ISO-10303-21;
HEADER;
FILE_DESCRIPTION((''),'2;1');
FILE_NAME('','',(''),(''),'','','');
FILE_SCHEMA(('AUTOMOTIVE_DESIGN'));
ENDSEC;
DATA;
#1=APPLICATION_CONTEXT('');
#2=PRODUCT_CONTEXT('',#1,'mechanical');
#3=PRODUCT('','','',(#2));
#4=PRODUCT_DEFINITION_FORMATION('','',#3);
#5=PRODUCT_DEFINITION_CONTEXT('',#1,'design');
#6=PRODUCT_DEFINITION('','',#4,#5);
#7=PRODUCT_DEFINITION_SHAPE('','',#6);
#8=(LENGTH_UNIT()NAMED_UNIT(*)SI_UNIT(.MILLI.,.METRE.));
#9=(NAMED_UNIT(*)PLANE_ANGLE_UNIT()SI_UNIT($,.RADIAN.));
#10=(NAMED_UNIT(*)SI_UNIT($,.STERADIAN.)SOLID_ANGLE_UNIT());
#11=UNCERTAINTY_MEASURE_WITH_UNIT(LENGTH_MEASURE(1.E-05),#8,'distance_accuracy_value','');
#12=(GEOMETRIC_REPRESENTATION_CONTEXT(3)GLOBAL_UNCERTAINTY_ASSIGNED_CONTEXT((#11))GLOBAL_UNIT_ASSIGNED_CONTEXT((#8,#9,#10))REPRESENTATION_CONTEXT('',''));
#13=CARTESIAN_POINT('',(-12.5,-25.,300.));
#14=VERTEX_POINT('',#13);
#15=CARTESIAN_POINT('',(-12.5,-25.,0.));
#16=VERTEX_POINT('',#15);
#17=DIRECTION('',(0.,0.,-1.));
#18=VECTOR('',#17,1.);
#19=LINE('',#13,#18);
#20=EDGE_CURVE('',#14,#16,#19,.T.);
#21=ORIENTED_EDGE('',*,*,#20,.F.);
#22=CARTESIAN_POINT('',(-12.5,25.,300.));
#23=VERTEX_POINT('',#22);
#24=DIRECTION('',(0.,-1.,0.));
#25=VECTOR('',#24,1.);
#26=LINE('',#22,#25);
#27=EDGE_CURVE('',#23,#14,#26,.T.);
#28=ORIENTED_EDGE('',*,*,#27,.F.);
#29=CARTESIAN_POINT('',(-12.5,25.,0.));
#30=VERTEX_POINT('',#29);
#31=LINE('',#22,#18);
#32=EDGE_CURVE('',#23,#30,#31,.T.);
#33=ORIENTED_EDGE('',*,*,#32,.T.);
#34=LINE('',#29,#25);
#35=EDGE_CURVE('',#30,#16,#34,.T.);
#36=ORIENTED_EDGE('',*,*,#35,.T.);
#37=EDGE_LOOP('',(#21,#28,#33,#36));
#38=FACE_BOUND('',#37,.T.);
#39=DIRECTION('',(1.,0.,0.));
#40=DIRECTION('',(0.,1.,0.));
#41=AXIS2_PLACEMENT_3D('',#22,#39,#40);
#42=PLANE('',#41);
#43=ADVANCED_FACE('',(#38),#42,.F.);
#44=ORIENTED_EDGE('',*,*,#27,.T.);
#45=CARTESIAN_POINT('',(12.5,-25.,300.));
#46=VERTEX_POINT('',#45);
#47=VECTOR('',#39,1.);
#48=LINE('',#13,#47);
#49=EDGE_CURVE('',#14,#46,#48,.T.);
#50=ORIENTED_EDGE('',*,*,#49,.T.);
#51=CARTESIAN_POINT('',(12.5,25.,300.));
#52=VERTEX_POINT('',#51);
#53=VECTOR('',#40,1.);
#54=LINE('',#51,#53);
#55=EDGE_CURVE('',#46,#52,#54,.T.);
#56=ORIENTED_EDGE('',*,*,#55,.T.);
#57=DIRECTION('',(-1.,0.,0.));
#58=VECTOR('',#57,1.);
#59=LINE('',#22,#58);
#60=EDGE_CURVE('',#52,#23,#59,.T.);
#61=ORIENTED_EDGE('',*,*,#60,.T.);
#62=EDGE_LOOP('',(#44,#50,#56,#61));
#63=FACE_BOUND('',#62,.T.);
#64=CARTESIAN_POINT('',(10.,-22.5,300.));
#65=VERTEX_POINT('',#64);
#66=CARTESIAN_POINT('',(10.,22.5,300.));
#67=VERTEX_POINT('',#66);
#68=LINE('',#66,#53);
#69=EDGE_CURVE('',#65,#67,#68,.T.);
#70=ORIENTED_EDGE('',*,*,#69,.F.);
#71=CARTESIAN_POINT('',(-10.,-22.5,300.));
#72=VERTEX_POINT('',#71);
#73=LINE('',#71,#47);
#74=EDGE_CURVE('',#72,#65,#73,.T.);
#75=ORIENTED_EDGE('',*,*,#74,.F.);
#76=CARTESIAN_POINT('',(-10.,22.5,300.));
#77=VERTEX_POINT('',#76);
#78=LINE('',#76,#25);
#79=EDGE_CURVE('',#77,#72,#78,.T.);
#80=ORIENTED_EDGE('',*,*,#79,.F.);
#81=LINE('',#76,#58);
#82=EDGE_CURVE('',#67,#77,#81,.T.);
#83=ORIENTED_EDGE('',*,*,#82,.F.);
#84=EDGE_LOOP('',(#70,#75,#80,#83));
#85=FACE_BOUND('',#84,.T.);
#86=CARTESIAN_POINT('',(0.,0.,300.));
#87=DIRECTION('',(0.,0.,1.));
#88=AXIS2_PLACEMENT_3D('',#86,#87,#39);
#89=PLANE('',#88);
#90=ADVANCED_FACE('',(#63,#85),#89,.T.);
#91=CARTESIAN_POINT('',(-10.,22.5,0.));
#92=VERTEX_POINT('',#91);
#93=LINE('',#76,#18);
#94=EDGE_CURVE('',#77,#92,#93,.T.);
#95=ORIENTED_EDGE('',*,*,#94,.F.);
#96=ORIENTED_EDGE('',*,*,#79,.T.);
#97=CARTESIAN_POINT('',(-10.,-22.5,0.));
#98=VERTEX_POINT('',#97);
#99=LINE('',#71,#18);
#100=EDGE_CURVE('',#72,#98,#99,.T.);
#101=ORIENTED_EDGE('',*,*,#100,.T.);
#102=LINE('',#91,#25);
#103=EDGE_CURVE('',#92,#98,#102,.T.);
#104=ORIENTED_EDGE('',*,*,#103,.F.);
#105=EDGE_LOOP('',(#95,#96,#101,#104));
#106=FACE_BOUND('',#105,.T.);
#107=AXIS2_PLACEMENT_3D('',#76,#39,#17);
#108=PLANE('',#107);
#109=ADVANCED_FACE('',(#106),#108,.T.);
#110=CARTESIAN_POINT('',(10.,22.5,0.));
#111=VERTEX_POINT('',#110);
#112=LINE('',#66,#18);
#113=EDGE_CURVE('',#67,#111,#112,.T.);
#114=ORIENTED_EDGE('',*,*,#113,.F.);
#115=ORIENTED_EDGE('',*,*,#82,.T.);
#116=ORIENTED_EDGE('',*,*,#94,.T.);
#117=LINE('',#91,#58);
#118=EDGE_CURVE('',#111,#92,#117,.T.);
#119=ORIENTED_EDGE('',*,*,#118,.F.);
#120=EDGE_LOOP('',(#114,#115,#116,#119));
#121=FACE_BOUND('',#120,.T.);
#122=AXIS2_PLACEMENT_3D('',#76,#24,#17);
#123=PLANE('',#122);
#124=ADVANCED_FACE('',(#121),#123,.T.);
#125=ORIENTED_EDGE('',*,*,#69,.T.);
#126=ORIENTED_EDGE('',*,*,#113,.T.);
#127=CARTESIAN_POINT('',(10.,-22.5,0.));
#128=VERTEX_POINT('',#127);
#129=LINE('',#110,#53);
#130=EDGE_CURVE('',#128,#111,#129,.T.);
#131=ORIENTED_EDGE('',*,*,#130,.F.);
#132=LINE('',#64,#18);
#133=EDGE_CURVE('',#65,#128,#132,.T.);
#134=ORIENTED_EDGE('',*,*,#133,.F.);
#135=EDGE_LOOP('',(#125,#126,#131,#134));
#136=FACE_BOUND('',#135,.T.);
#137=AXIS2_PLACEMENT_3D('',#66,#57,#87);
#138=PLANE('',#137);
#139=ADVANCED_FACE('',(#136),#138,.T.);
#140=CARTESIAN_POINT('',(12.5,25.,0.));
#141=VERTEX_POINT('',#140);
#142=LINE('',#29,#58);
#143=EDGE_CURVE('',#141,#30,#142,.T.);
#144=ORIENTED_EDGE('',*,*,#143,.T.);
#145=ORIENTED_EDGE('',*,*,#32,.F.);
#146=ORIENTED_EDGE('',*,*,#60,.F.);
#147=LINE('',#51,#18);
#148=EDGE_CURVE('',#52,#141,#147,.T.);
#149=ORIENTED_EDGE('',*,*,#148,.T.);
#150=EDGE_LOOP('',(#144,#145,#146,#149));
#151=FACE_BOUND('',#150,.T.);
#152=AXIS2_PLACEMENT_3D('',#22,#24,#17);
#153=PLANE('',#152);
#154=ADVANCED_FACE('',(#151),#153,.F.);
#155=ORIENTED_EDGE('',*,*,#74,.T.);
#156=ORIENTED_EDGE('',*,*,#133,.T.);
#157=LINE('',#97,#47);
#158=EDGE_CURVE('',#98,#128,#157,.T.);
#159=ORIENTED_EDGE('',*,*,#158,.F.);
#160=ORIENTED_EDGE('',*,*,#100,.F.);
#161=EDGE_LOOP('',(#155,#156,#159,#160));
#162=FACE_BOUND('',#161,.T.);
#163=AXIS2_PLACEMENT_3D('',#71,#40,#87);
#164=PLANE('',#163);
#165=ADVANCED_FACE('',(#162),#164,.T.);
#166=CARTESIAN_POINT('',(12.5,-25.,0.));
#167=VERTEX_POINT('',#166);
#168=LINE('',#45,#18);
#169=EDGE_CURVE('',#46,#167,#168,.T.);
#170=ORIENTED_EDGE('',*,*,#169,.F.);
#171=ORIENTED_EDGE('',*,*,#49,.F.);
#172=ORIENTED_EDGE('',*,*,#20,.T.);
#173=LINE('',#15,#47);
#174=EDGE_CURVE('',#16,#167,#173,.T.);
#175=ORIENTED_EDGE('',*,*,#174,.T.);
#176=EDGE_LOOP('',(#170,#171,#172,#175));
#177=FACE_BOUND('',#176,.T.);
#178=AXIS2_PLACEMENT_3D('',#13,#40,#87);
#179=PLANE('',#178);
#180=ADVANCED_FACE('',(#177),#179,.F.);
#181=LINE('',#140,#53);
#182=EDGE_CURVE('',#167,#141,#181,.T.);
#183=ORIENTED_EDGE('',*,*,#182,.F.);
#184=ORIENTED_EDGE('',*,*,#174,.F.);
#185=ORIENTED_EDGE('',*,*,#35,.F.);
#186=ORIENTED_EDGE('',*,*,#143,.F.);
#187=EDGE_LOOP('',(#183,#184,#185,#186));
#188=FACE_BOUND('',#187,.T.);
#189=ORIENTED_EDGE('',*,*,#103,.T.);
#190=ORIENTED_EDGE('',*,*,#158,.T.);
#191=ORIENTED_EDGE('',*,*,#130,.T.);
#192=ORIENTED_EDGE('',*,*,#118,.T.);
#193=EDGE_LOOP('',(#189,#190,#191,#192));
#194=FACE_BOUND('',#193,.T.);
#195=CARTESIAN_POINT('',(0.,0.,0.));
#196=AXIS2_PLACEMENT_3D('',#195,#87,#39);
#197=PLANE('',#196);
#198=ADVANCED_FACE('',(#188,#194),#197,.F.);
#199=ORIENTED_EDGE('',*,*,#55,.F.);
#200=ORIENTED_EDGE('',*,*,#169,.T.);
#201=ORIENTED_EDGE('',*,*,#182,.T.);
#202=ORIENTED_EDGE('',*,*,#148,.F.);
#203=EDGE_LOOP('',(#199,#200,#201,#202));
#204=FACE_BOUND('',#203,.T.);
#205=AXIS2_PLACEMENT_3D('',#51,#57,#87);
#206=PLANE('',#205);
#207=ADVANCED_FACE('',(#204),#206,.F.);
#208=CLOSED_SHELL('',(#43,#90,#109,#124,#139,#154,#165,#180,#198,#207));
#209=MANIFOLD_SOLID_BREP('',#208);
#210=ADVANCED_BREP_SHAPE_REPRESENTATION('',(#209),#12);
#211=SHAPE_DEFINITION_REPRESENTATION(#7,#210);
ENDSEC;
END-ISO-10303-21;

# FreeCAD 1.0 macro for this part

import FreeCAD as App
import Part
import Sketcher
from FreeCAD import Vector

doc = App.newDocument("Part")
body = doc.addObject("PartDesign::Body", "Body")

# Sketch on XY plane
sketch1 = body.newObject("Sketcher::SketchObject", "Sketch")
sketch1.AttachmentSupport = (doc.getObject("XY_Plane"), [""])
sketch1.MapMode = "FlatFace"
sketch1.addGeometry([
    Part.LineSegment(Vector(-12, 25, 0), Vector(-12, -25, 0)),  # 0
    Part.LineSegment(Vector(-12, -25, 0), Vector(12, -25, 0)),  # 1
    Part.LineSegment(Vector(12, -25, 0), Vector(12, 25, 0)),  # 2
    Part.LineSegment(Vector(12, 25, 0), Vector(-12, 25, 0)),  # 3
    Part.LineSegment(Vector(10, -22, 0), Vector(-10, -22, 0)),  # 4
    Part.LineSegment(Vector(-10, -22, 0), Vector(-10, 22, 0)),  # 5
    Part.LineSegment(Vector(-10, 22, 0), Vector(10, 22, 0)),  # 6
    Part.LineSegment(Vector(10, 22, 0), Vector(10, -22, 0)),  # 7
], False)
sketch1.addConstraint([
    Sketcher.Constraint("Coincident", 0, 2, 1, 1),
    Sketcher.Constraint("Coincident", 1, 2, 2, 1),
    Sketcher.Constraint("Coincident", 2, 2, 3, 1),
    Sketcher.Constraint("Coincident", 3, 2, 0, 1),
    Sketcher.Constraint("Coincident", 4, 2, 5, 1),
    Sketcher.Constraint("Coincident", 5, 2, 6, 1),
    Sketcher.Constraint("Coincident", 6, 2, 7, 1),
    Sketcher.Constraint("Coincident", 7, 2, 4, 1),
    Sketcher.Constraint("Vertical", 0),
    Sketcher.Constraint("Horizontal", 1),
    Sketcher.Constraint("Vertical", 2),
    Sketcher.Constraint("Horizontal", 3),
    Sketcher.Constraint("Horizontal", 4),
    Sketcher.Constraint("Vertical", 5),
    Sketcher.Constraint("Horizontal", 6),
    Sketcher.Constraint("Vertical", 7),
    Sketcher.Constraint("Symmetric", 0, 2, 2, 2, -1, 1),
    Sketcher.Constraint("Symmetric", 4, 2, 6, 2, -1, 1),
    Sketcher.Constraint("DistanceX", 1, 1, 1, 2, 25.0),
    Sketcher.Constraint("DistanceX", 4, 2, 4, 1, 20.0),
    Sketcher.Constraint("DistanceY", 0, 2, 0, 1, 50.0),
    Sketcher.Constraint("DistanceY", 5, 1, 5, 2, 45.0),
])
pad1 = body.newObject("PartDesign::Pad", "Pad")
pad1.Profile = sketch1
pad1.Length = 300

doc.recompute()
